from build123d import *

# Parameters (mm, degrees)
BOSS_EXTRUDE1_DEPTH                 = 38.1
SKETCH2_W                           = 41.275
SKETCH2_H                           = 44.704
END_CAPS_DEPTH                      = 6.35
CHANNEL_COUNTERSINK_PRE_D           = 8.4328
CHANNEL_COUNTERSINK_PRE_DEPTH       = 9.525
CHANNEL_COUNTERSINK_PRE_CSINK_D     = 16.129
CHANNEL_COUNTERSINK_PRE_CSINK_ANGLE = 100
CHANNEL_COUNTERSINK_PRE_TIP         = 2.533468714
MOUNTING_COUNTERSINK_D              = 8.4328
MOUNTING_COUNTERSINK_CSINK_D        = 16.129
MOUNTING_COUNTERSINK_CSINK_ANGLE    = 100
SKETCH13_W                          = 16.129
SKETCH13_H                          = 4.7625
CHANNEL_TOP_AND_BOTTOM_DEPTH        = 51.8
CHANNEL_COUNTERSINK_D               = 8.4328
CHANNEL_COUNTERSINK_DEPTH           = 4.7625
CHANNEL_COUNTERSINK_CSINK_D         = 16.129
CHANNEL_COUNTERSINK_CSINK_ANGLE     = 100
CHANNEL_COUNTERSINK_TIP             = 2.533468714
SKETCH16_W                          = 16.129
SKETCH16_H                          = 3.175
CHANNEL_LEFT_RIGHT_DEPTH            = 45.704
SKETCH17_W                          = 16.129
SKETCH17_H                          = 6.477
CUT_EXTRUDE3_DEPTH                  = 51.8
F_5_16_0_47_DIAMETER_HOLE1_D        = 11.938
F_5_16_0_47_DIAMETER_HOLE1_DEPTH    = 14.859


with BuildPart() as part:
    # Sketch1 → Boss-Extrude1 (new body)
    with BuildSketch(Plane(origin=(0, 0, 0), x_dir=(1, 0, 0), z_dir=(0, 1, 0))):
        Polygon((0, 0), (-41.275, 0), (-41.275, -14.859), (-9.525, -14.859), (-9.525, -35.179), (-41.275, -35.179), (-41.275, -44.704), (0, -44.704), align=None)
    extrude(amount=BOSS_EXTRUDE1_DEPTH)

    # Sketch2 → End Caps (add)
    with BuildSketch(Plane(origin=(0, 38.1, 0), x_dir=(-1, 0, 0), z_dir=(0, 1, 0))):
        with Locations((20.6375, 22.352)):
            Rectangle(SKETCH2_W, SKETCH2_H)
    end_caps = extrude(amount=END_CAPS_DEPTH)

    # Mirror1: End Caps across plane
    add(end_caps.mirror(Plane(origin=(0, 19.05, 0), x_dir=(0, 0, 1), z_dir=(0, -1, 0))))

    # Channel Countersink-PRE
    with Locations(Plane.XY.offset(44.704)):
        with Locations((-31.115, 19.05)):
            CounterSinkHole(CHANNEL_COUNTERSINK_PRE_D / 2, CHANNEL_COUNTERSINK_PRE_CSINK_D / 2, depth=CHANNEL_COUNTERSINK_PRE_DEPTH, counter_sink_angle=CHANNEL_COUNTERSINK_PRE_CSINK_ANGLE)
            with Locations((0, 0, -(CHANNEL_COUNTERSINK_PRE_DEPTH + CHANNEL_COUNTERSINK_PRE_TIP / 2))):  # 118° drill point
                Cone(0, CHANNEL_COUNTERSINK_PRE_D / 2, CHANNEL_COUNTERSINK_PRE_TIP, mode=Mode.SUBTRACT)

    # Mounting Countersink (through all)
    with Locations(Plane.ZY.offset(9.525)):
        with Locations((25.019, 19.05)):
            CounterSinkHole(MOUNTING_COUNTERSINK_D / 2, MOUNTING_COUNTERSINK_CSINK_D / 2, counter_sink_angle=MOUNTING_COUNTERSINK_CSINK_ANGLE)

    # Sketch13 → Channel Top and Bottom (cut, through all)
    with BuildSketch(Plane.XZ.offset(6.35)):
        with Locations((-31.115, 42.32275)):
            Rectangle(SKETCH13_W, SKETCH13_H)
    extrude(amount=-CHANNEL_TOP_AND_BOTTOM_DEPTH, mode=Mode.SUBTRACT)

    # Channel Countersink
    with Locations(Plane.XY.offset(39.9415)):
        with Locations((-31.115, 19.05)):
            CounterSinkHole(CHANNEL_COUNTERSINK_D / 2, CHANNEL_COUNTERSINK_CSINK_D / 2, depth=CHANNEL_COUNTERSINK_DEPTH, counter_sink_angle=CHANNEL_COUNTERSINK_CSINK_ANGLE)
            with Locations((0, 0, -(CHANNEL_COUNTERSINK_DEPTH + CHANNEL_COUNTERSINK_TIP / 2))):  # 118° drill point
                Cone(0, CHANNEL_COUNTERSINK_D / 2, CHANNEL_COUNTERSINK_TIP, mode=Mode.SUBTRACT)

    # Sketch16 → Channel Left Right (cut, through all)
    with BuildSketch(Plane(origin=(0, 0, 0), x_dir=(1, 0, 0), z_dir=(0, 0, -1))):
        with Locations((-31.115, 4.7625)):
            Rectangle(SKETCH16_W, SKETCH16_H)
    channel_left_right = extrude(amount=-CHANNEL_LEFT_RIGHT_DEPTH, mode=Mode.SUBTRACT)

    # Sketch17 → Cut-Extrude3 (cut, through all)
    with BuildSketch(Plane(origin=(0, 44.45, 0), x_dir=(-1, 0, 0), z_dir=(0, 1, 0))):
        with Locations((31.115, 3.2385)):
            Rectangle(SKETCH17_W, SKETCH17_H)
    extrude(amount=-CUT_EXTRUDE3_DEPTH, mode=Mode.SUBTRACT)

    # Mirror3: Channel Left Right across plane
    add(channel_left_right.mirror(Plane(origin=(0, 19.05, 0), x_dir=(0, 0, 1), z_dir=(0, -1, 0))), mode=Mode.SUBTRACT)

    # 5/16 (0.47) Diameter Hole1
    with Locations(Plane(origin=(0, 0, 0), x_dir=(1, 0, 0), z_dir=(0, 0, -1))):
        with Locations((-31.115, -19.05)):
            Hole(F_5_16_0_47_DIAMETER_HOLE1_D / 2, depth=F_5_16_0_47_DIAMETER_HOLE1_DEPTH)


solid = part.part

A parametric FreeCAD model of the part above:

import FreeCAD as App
import Part
import Sketcher
from FreeCAD import Vector
Q = App.Units.Quantity


def add_polygon(sketch, points):
    """Adds a closed chain of lines whose ends are joined by coincident constraints."""
    first, n = sketch.GeometryCount, len(points)
    for a, b in zip(points, points[1:] + points[:1]):
        sketch.addGeometry(Part.LineSegment(App.Vector(*a, 0), App.Vector(*b, 0)), False)
    for i in range(n):
        sketch.addConstraint(Sketcher.Constraint("Coincident", first + i, 2, first + (i + 1) % n, 1))

doc = App.newDocument("Part")
params = doc.addObject("Spreadsheet::Sheet", "Params")
for row, (alias, value) in enumerate([
    ("sketch1_height", "0.8 in"),
    ("sketch1_width", "1.25 in"),
    ("sketch1_height2", "1.76 in"),
    ("sketch1_width2", "1.625 in"),
    ("sketch1_height3", "0.585 in"),
    ("pad1_length", "1.5 in"),
    ("sketch2_height", "1.76 in"),
    ("sketch2_width", "1.625 in"),
    ("pad2_length", "0.25 in"),
    ("sketch3_diameter", "0.332 in"),
    ("hole_diameter", "0.332 in"),
    ("hole_depth", "0.375 in"),
    ("hole_csink_diameter", "0.635 in"),
    ("sketch4_diameter", "0.332 in"),
    ("hole2_diameter", "0.332 in"),
    ("hole2_csink_diameter", "0.635 in"),
    ("sketch5_width", "0.635 in"),
    ("sketch5_height", "0.1875 in"),
    ("sketch6_diameter", "0.332 in"),
    ("hole3_diameter", "0.332 in"),
    ("hole3_depth", "0.1875 in"),
    ("hole3_csink_diameter", "0.635 in"),
    ("sketch7_width", "0.635 in"),
    ("sketch7_height", "0.125 in"),
    ("sketch8_width", "0.635 in"),
    ("sketch8_height", "0.255 in"),
    ("sketch9_diameter", "0.47 in"),
    ("hole4_diameter", "0.47 in"),
    ("hole4_depth", "0.585 in"),
], start=1):
    params.set(f"A{row}", alias)
    params.set(f"B{row}", "=" + value)
    params.setAlias(f"B{row}", alias)

body = doc.addObject("PartDesign::Body", "Body")

# Sketch on XZ plane
sketch1 = body.newObject("Sketcher::SketchObject", "Sketch")
sketch1.AttachmentSupport = (doc.getObject("XZ_Plane"), [""])
sketch1.MapMode = "FlatFace"
add_polygon(sketch1, [(0, 0), (-41.275, 0), (-41.275, 14.859), (-9.525, 14.859), (-9.525, 35.179), (-41.275, 35.179), (-41.275, 44.704), (0, 44.704)])  # lines 0-7
sketch1.addConstraint(Sketcher.Constraint("Horizontal", 0))
sketch1.addConstraint(Sketcher.Constraint("Vertical", 1))
sketch1.addConstraint(Sketcher.Constraint("Horizontal", 2))
sketch1.addConstraint(Sketcher.Constraint("Vertical", 3))
sketch1.addConstraint(Sketcher.Constraint("Horizontal", 4))
sketch1.addConstraint(Sketcher.Constraint("Vertical", 5))
sketch1.addConstraint(Sketcher.Constraint("Horizontal", 6))
sketch1.addConstraint(Sketcher.Constraint("Vertical", 7))
sketch1.addConstraint(Sketcher.Constraint("Coincident", 7, 2, -1, 1))
sketch1.addConstraint(Sketcher.Constraint("Vertical", 1, 2, 4, 2))
sketch1.addConstraint(Sketcher.Constraint("DistanceY", 3, 1, 3, 2, Q("0.8 in")))
sketch1.addConstraint(Sketcher.Constraint("DistanceX", 2, 1, 2, 2, Q("1.25 in")))
sketch1.addConstraint(Sketcher.Constraint("DistanceY", 7, 2, 7, 1, Q("1.76 in")))
sketch1.addConstraint(Sketcher.Constraint("DistanceX", 0, 2, 0, 1, Q("1.625 in")))
sketch1.addConstraint(Sketcher.Constraint("DistanceY", 1, 1, 1, 2, Q("0.585 in")))
sketch1.setExpression("Constraints[18]", "Params.sketch1_height")
sketch1.setExpression("Constraints[19]", "Params.sketch1_width")
sketch1.setExpression("Constraints[20]", "Params.sketch1_height2")
sketch1.setExpression("Constraints[21]", "Params.sketch1_width2")
sketch1.setExpression("Constraints[22]", "Params.sketch1_height3")
pad1 = body.newObject("PartDesign::Pad", "Pad")
pad1.Profile = sketch1
pad1.setExpression("Length", "Params.pad1_length")
pad1.Reversed = True

# Sketch on XZ plane
sketch2 = body.newObject("Sketcher::SketchObject", "Sketch001")
sketch2.AttachmentSupport = (doc.getObject("XZ_Plane"), [""])
sketch2.MapMode = "FlatFace"
sketch2.AttachmentOffset = App.Placement(Vector(0, 0, -1.5 * 25.4), App.Rotation())
add_polygon(sketch2, [(0, 44.704), (0, 0), (-41.275, 0), (-41.275, 44.704)])  # lines 0-3
sketch2.addConstraint(Sketcher.Constraint("Vertical", 0))
sketch2.addConstraint(Sketcher.Constraint("Horizontal", 1))
sketch2.addConstraint(Sketcher.Constraint("Vertical", 2))
sketch2.addConstraint(Sketcher.Constraint("Horizontal", 3))
sketch2.addConstraint(Sketcher.Constraint("Coincident", 0, 2, -1, 1))
sketch2.addConstraint(Sketcher.Constraint("DistanceY", 0, 2, 0, 1, Q("1.76 in")))
sketch2.addConstraint(Sketcher.Constraint("DistanceX", 1, 2, 1, 1, Q("1.625 in")))
sketch2.setExpression("Constraints[9]", "Params.sketch2_height")
sketch2.setExpression("Constraints[10]", "Params.sketch2_width")
pad2 = body.newObject("PartDesign::Pad", "Pad001")
pad2.Profile = sketch2
pad2.setExpression("Length", "Params.pad2_length")
pad2.Reversed = True
doc.recompute()

datumplane = body.newObject("PartDesign::Plane", "DatumPlane")
datumplane.AttachmentSupport = (doc.getObject("XZ_Plane"), [""])
datumplane.MapMode = "FlatFace"
datumplane.AttachmentOffset = App.Placement(Vector(0, 0, -0.75 * 25.4), App.Rotation())
mirrored = body.newObject("PartDesign::Mirrored", "Mirrored")
mirrored.Originals = [pad2]
mirrored.MirrorPlane = (datumplane, [""])
body.Tip = mirrored

# Sketch on XY plane
sketch3 = body.newObject("Sketcher::SketchObject", "Sketch002")
sketch3.AttachmentSupport = (doc.getObject("XY_Plane"), [""])
sketch3.MapMode = "FlatFace"
sketch3.AttachmentOffset = App.Placement(Vector(0, 0, 1.76 * 25.4), App.Rotation())
sketch3.addGeometry(Part.Circle(Vector(-31.115, 19.05, 0), Vector(0, 0, 1), 4.2164), False)
sketch3.addConstraint(Sketcher.Constraint("Diameter", 0, Q("0.332 in")))
sketch3.addConstraint(Sketcher.Constraint("DistanceY", -1, 1, 0, 3, Q("0.75 in")))
sketch3.addConstraint(Sketcher.Constraint("DistanceX", 0, 3, -1, 1, Q("1.225 in")))
sketch3.setExpression("Constraints[0]", "Params.sketch3_diameter")
doc.recompute()
hole = body.newObject("PartDesign::Hole", "Hole")
hole.Profile = sketch3
hole.ThreadType = "None"
hole.setExpression("Diameter", "Params.hole_diameter")
hole.DepthType = "Dimension"
hole.setExpression("Depth", "Params.hole_depth")
hole.DrillPoint = "Angled"
hole.DrillPointAngle = 118
hole.HoleCutType = "Countersink"
hole.setExpression("HoleCutDiameter", "Params.hole_csink_diameter")
hole.HoleCutCountersinkAngle = 100

# Sketch on YZ plane
sketch4 = body.newObject("Sketcher::SketchObject", "Sketch003")
sketch4.AttachmentSupport = (doc.getObject("YZ_Plane"), [""])
sketch4.MapMode = "FlatFace"
sketch4.AttachmentOffset = App.Placement(Vector(0, 0, -0.375 * 25.4), App.Rotation())
sketch4.addGeometry(Part.Circle(Vector(19.05, 25.019, 0), Vector(0, 0, 1), 4.2164), False)
sketch4.addConstraint(Sketcher.Constraint("Diameter", 0, Q("0.332 in")))
sketch4.addConstraint(Sketcher.Constraint("DistanceX", -1, 1, 0, 3, Q("0.75 in")))
sketch4.addConstraint(Sketcher.Constraint("DistanceY", -1, 1, 0, 3, Q("0.985 in")))
sketch4.setExpression("Constraints[0]", "Params.sketch4_diameter")
doc.recompute()
hole2 = body.newObject("PartDesign::Hole", "Hole001")
hole2.Profile = sketch4
hole2.ThreadType = "None"
hole2.setExpression("Diameter", "Params.hole2_diameter")
hole2.DepthType = "ThroughAll"
hole2.HoleCutType = "Countersink"
hole2.setExpression("HoleCutDiameter", "Params.hole2_csink_diameter")
hole2.HoleCutCountersinkAngle = 100
hole2.Reversed = True

# Sketch on XZ plane
sketch5 = body.newObject("Sketcher::SketchObject", "Sketch004")
sketch5.AttachmentSupport = (doc.getObject("XZ_Plane"), [""])
sketch5.MapMode = "FlatFace"
sketch5.AttachmentOffset = App.Placement(Vector(0, 0, 0.25 * 25.4), App.Rotation())
add_polygon(sketch5, [(-39.1795, 44.704), (-39.1795, 39.9415), (-23.0505, 39.9415), (-23.0505, 44.704)])  # lines 0-3
sketch5.addConstraint(Sketcher.Constraint("Vertical", 0))
sketch5.addConstraint(Sketcher.Constraint("Horizontal", 1))
sketch5.addConstraint(Sketcher.Constraint("Vertical", 2))
sketch5.addConstraint(Sketcher.Constraint("Horizontal", 3))
sketch5.addConstraint(Sketcher.Constraint("DistanceX", 1, 1, 1, 2, Q("0.635 in")))
sketch5.addConstraint(Sketcher.Constraint("DistanceY", 0, 2, 0, 1, Q("0.1875 in")))
sketch5.addConstraint(Sketcher.Constraint("DistanceY", -1, 1, 2, 2, Q("1.76 in")))
sketch5.addConstraint(Sketcher.Constraint("DistanceX", 0, 2, -1, 1, Q("1.5425 in")))
sketch5.setExpression("Constraints[8]", "Params.sketch5_width")
sketch5.setExpression("Constraints[9]", "Params.sketch5_height")
pocket1 = body.newObject("PartDesign::Pocket", "Pocket")
pocket1.Profile = sketch5
pocket1.Type = "ThroughAll"

# Sketch on XY plane
sketch6 = body.newObject("Sketcher::SketchObject", "Sketch005")
sketch6.AttachmentSupport = (doc.getObject("XY_Plane"), [""])
sketch6.MapMode = "FlatFace"
sketch6.AttachmentOffset = App.Placement(Vector(0, 0, 1.5725 * 25.4), App.Rotation())
sketch6.addGeometry(Part.Circle(Vector(-31.115, 19.05, 0), Vector(0, 0, 1), 4.2164), False)
sketch6.addConstraint(Sketcher.Constraint("Diameter", 0, Q("0.332 in")))
sketch6.addConstraint(Sketcher.Constraint("DistanceY", -1, 1, 0, 3, Q("0.75 in")))
sketch6.addConstraint(Sketcher.Constraint("DistanceX", 0, 3, -1, 1, Q("1.225 in")))
sketch6.setExpression("Constraints[0]", "Params.sketch6_diameter")
doc.recompute()
hole3 = body.newObject("PartDesign::Hole", "Hole002")
hole3.Profile = sketch6
hole3.ThreadType = "None"
hole3.setExpression("Diameter", "Params.hole3_diameter")
hole3.DepthType = "Dimension"
hole3.setExpression("Depth", "Params.hole3_depth")
hole3.DrillPoint = "Angled"
hole3.DrillPointAngle = 118
hole3.HoleCutType = "Countersink"
hole3.setExpression("HoleCutDiameter", "Params.hole3_csink_diameter")
hole3.HoleCutCountersinkAngle = 100

# Sketch on XY plane
sketch7 = body.newObject("Sketcher::SketchObject", "Sketch006")
sketch7.AttachmentSupport = (doc.getObject("XY_Plane"), [""])
sketch7.MapMode = "FlatFace"
add_polygon(sketch7, [(-39.1795, -6.35), (-39.1795, -3.175), (-23.0505, -3.175), (-23.0505, -6.35)])  # lines 0-3
sketch7.addConstraint(Sketcher.Constraint("Vertical", 0))
sketch7.addConstraint(Sketcher.Constraint("Horizontal", 1))
sketch7.addConstraint(Sketcher.Constraint("Vertical", 2))
sketch7.addConstraint(Sketcher.Constraint("Horizontal", 3))
sketch7.addConstraint(Sketcher.Constraint("DistanceX", 1, 1, 1, 2, Q("0.635 in")))
sketch7.addConstraint(Sketcher.Constraint("DistanceY", 0, 1, 0, 2, Q("0.125 in")))
sketch7.addConstraint(Sketcher.Constraint("DistanceY", 2, 2, -1, 1, Q("0.25 in")))
sketch7.addConstraint(Sketcher.Constraint("DistanceX", 0, 2, -1, 1, Q("1.5425 in")))
sketch7.setExpression("Constraints[8]", "Params.sketch7_width")
sketch7.setExpression("Constraints[9]", "Params.sketch7_height")
pocket2 = body.newObject("PartDesign::Pocket", "Pocket001")
pocket2.Profile = sketch7
pocket2.Type = "ThroughAll"
pocket2.Reversed = True

# Sketch on XZ plane
sketch8 = body.newObject("Sketcher::SketchObject", "Sketch007")
sketch8.AttachmentSupport = (doc.getObject("XZ_Plane"), [""])
sketch8.MapMode = "FlatFace"
sketch8.AttachmentOffset = App.Placement(Vector(0, 0, -1.75 * 25.4), App.Rotation())
add_polygon(sketch8, [(-23.0505, 6.477), (-23.0505, 0), (-39.1795, 0), (-39.1795, 6.477)])  # lines 0-3
sketch8.addConstraint(Sketcher.Constraint("Vertical", 0))
sketch8.addConstraint(Sketcher.Constraint("Horizontal", 1))
sketch8.addConstraint(Sketcher.Constraint("Vertical", 2))
sketch8.addConstraint(Sketcher.Constraint("Horizontal", 3))
sketch8.addConstraint(Sketcher.Constraint("PointOnObject", 0, 2, -1))
sketch8.addConstraint(Sketcher.Constraint("DistanceX", 1, 2, 1, 1, Q("0.635 in")))
sketch8.addConstraint(Sketcher.Constraint("DistanceY", 0, 2, 0, 1, Q("0.255 in")))
sketch8.addConstraint(Sketcher.Constraint("DistanceX", 0, 2, -1, 1, Q("0.9075 in")))
sketch8.setExpression("Constraints[9]", "Params.sketch8_width")
sketch8.setExpression("Constraints[10]", "Params.sketch8_height")
pocket3 = body.newObject("PartDesign::Pocket", "Pocket002")
pocket3.Profile = sketch8
pocket3.Type = "ThroughAll"
pocket3.Reversed = True
doc.recompute()

datumplane2 = body.newObject("PartDesign::Plane", "DatumPlane001")
datumplane2.AttachmentSupport = (doc.getObject("XZ_Plane"), [""])
datumplane2.MapMode = "FlatFace"
datumplane2.AttachmentOffset = App.Placement(Vector(0, 0, -0.75 * 25.4), App.Rotation())
mirrored2 = body.newObject("PartDesign::Mirrored", "Mirrored001")
mirrored2.Originals = [pocket2]
mirrored2.MirrorPlane = (datumplane2, [""])
body.Tip = mirrored2

# Sketch on XY plane
sketch9 = body.newObject("Sketcher::SketchObject", "Sketch008")
sketch9.AttachmentSupport = (doc.getObject("XY_Plane"), [""])
sketch9.MapMode = "FlatFace"
sketch9.addGeometry(Part.Circle(Vector(-31.115, 19.05, 0), Vector(0, 0, 1), 5.969), False)
sketch9.addConstraint(Sketcher.Constraint("Diameter", 0, Q("0.47 in")))
sketch9.addConstraint(Sketcher.Constraint("DistanceY", -1, 1, 0, 3, Q("0.75 in")))
sketch9.addConstraint(Sketcher.Constraint("DistanceX", 0, 3, -1, 1, Q("1.225 in")))
sketch9.setExpression("Constraints[0]", "Params.sketch9_diameter")
doc.recompute()
hole4 = body.newObject("PartDesign::Hole", "Hole003")
hole4.Profile = sketch9
hole4.ThreadType = "None"
hole4.setExpression("Diameter", "Params.hole4_diameter")
hole4.DepthType = "Dimension"
hole4.setExpression("Depth", "Params.hole4_depth")
hole4.DrillPoint = "Flat"
hole4.Reversed = True

doc.recompute()
